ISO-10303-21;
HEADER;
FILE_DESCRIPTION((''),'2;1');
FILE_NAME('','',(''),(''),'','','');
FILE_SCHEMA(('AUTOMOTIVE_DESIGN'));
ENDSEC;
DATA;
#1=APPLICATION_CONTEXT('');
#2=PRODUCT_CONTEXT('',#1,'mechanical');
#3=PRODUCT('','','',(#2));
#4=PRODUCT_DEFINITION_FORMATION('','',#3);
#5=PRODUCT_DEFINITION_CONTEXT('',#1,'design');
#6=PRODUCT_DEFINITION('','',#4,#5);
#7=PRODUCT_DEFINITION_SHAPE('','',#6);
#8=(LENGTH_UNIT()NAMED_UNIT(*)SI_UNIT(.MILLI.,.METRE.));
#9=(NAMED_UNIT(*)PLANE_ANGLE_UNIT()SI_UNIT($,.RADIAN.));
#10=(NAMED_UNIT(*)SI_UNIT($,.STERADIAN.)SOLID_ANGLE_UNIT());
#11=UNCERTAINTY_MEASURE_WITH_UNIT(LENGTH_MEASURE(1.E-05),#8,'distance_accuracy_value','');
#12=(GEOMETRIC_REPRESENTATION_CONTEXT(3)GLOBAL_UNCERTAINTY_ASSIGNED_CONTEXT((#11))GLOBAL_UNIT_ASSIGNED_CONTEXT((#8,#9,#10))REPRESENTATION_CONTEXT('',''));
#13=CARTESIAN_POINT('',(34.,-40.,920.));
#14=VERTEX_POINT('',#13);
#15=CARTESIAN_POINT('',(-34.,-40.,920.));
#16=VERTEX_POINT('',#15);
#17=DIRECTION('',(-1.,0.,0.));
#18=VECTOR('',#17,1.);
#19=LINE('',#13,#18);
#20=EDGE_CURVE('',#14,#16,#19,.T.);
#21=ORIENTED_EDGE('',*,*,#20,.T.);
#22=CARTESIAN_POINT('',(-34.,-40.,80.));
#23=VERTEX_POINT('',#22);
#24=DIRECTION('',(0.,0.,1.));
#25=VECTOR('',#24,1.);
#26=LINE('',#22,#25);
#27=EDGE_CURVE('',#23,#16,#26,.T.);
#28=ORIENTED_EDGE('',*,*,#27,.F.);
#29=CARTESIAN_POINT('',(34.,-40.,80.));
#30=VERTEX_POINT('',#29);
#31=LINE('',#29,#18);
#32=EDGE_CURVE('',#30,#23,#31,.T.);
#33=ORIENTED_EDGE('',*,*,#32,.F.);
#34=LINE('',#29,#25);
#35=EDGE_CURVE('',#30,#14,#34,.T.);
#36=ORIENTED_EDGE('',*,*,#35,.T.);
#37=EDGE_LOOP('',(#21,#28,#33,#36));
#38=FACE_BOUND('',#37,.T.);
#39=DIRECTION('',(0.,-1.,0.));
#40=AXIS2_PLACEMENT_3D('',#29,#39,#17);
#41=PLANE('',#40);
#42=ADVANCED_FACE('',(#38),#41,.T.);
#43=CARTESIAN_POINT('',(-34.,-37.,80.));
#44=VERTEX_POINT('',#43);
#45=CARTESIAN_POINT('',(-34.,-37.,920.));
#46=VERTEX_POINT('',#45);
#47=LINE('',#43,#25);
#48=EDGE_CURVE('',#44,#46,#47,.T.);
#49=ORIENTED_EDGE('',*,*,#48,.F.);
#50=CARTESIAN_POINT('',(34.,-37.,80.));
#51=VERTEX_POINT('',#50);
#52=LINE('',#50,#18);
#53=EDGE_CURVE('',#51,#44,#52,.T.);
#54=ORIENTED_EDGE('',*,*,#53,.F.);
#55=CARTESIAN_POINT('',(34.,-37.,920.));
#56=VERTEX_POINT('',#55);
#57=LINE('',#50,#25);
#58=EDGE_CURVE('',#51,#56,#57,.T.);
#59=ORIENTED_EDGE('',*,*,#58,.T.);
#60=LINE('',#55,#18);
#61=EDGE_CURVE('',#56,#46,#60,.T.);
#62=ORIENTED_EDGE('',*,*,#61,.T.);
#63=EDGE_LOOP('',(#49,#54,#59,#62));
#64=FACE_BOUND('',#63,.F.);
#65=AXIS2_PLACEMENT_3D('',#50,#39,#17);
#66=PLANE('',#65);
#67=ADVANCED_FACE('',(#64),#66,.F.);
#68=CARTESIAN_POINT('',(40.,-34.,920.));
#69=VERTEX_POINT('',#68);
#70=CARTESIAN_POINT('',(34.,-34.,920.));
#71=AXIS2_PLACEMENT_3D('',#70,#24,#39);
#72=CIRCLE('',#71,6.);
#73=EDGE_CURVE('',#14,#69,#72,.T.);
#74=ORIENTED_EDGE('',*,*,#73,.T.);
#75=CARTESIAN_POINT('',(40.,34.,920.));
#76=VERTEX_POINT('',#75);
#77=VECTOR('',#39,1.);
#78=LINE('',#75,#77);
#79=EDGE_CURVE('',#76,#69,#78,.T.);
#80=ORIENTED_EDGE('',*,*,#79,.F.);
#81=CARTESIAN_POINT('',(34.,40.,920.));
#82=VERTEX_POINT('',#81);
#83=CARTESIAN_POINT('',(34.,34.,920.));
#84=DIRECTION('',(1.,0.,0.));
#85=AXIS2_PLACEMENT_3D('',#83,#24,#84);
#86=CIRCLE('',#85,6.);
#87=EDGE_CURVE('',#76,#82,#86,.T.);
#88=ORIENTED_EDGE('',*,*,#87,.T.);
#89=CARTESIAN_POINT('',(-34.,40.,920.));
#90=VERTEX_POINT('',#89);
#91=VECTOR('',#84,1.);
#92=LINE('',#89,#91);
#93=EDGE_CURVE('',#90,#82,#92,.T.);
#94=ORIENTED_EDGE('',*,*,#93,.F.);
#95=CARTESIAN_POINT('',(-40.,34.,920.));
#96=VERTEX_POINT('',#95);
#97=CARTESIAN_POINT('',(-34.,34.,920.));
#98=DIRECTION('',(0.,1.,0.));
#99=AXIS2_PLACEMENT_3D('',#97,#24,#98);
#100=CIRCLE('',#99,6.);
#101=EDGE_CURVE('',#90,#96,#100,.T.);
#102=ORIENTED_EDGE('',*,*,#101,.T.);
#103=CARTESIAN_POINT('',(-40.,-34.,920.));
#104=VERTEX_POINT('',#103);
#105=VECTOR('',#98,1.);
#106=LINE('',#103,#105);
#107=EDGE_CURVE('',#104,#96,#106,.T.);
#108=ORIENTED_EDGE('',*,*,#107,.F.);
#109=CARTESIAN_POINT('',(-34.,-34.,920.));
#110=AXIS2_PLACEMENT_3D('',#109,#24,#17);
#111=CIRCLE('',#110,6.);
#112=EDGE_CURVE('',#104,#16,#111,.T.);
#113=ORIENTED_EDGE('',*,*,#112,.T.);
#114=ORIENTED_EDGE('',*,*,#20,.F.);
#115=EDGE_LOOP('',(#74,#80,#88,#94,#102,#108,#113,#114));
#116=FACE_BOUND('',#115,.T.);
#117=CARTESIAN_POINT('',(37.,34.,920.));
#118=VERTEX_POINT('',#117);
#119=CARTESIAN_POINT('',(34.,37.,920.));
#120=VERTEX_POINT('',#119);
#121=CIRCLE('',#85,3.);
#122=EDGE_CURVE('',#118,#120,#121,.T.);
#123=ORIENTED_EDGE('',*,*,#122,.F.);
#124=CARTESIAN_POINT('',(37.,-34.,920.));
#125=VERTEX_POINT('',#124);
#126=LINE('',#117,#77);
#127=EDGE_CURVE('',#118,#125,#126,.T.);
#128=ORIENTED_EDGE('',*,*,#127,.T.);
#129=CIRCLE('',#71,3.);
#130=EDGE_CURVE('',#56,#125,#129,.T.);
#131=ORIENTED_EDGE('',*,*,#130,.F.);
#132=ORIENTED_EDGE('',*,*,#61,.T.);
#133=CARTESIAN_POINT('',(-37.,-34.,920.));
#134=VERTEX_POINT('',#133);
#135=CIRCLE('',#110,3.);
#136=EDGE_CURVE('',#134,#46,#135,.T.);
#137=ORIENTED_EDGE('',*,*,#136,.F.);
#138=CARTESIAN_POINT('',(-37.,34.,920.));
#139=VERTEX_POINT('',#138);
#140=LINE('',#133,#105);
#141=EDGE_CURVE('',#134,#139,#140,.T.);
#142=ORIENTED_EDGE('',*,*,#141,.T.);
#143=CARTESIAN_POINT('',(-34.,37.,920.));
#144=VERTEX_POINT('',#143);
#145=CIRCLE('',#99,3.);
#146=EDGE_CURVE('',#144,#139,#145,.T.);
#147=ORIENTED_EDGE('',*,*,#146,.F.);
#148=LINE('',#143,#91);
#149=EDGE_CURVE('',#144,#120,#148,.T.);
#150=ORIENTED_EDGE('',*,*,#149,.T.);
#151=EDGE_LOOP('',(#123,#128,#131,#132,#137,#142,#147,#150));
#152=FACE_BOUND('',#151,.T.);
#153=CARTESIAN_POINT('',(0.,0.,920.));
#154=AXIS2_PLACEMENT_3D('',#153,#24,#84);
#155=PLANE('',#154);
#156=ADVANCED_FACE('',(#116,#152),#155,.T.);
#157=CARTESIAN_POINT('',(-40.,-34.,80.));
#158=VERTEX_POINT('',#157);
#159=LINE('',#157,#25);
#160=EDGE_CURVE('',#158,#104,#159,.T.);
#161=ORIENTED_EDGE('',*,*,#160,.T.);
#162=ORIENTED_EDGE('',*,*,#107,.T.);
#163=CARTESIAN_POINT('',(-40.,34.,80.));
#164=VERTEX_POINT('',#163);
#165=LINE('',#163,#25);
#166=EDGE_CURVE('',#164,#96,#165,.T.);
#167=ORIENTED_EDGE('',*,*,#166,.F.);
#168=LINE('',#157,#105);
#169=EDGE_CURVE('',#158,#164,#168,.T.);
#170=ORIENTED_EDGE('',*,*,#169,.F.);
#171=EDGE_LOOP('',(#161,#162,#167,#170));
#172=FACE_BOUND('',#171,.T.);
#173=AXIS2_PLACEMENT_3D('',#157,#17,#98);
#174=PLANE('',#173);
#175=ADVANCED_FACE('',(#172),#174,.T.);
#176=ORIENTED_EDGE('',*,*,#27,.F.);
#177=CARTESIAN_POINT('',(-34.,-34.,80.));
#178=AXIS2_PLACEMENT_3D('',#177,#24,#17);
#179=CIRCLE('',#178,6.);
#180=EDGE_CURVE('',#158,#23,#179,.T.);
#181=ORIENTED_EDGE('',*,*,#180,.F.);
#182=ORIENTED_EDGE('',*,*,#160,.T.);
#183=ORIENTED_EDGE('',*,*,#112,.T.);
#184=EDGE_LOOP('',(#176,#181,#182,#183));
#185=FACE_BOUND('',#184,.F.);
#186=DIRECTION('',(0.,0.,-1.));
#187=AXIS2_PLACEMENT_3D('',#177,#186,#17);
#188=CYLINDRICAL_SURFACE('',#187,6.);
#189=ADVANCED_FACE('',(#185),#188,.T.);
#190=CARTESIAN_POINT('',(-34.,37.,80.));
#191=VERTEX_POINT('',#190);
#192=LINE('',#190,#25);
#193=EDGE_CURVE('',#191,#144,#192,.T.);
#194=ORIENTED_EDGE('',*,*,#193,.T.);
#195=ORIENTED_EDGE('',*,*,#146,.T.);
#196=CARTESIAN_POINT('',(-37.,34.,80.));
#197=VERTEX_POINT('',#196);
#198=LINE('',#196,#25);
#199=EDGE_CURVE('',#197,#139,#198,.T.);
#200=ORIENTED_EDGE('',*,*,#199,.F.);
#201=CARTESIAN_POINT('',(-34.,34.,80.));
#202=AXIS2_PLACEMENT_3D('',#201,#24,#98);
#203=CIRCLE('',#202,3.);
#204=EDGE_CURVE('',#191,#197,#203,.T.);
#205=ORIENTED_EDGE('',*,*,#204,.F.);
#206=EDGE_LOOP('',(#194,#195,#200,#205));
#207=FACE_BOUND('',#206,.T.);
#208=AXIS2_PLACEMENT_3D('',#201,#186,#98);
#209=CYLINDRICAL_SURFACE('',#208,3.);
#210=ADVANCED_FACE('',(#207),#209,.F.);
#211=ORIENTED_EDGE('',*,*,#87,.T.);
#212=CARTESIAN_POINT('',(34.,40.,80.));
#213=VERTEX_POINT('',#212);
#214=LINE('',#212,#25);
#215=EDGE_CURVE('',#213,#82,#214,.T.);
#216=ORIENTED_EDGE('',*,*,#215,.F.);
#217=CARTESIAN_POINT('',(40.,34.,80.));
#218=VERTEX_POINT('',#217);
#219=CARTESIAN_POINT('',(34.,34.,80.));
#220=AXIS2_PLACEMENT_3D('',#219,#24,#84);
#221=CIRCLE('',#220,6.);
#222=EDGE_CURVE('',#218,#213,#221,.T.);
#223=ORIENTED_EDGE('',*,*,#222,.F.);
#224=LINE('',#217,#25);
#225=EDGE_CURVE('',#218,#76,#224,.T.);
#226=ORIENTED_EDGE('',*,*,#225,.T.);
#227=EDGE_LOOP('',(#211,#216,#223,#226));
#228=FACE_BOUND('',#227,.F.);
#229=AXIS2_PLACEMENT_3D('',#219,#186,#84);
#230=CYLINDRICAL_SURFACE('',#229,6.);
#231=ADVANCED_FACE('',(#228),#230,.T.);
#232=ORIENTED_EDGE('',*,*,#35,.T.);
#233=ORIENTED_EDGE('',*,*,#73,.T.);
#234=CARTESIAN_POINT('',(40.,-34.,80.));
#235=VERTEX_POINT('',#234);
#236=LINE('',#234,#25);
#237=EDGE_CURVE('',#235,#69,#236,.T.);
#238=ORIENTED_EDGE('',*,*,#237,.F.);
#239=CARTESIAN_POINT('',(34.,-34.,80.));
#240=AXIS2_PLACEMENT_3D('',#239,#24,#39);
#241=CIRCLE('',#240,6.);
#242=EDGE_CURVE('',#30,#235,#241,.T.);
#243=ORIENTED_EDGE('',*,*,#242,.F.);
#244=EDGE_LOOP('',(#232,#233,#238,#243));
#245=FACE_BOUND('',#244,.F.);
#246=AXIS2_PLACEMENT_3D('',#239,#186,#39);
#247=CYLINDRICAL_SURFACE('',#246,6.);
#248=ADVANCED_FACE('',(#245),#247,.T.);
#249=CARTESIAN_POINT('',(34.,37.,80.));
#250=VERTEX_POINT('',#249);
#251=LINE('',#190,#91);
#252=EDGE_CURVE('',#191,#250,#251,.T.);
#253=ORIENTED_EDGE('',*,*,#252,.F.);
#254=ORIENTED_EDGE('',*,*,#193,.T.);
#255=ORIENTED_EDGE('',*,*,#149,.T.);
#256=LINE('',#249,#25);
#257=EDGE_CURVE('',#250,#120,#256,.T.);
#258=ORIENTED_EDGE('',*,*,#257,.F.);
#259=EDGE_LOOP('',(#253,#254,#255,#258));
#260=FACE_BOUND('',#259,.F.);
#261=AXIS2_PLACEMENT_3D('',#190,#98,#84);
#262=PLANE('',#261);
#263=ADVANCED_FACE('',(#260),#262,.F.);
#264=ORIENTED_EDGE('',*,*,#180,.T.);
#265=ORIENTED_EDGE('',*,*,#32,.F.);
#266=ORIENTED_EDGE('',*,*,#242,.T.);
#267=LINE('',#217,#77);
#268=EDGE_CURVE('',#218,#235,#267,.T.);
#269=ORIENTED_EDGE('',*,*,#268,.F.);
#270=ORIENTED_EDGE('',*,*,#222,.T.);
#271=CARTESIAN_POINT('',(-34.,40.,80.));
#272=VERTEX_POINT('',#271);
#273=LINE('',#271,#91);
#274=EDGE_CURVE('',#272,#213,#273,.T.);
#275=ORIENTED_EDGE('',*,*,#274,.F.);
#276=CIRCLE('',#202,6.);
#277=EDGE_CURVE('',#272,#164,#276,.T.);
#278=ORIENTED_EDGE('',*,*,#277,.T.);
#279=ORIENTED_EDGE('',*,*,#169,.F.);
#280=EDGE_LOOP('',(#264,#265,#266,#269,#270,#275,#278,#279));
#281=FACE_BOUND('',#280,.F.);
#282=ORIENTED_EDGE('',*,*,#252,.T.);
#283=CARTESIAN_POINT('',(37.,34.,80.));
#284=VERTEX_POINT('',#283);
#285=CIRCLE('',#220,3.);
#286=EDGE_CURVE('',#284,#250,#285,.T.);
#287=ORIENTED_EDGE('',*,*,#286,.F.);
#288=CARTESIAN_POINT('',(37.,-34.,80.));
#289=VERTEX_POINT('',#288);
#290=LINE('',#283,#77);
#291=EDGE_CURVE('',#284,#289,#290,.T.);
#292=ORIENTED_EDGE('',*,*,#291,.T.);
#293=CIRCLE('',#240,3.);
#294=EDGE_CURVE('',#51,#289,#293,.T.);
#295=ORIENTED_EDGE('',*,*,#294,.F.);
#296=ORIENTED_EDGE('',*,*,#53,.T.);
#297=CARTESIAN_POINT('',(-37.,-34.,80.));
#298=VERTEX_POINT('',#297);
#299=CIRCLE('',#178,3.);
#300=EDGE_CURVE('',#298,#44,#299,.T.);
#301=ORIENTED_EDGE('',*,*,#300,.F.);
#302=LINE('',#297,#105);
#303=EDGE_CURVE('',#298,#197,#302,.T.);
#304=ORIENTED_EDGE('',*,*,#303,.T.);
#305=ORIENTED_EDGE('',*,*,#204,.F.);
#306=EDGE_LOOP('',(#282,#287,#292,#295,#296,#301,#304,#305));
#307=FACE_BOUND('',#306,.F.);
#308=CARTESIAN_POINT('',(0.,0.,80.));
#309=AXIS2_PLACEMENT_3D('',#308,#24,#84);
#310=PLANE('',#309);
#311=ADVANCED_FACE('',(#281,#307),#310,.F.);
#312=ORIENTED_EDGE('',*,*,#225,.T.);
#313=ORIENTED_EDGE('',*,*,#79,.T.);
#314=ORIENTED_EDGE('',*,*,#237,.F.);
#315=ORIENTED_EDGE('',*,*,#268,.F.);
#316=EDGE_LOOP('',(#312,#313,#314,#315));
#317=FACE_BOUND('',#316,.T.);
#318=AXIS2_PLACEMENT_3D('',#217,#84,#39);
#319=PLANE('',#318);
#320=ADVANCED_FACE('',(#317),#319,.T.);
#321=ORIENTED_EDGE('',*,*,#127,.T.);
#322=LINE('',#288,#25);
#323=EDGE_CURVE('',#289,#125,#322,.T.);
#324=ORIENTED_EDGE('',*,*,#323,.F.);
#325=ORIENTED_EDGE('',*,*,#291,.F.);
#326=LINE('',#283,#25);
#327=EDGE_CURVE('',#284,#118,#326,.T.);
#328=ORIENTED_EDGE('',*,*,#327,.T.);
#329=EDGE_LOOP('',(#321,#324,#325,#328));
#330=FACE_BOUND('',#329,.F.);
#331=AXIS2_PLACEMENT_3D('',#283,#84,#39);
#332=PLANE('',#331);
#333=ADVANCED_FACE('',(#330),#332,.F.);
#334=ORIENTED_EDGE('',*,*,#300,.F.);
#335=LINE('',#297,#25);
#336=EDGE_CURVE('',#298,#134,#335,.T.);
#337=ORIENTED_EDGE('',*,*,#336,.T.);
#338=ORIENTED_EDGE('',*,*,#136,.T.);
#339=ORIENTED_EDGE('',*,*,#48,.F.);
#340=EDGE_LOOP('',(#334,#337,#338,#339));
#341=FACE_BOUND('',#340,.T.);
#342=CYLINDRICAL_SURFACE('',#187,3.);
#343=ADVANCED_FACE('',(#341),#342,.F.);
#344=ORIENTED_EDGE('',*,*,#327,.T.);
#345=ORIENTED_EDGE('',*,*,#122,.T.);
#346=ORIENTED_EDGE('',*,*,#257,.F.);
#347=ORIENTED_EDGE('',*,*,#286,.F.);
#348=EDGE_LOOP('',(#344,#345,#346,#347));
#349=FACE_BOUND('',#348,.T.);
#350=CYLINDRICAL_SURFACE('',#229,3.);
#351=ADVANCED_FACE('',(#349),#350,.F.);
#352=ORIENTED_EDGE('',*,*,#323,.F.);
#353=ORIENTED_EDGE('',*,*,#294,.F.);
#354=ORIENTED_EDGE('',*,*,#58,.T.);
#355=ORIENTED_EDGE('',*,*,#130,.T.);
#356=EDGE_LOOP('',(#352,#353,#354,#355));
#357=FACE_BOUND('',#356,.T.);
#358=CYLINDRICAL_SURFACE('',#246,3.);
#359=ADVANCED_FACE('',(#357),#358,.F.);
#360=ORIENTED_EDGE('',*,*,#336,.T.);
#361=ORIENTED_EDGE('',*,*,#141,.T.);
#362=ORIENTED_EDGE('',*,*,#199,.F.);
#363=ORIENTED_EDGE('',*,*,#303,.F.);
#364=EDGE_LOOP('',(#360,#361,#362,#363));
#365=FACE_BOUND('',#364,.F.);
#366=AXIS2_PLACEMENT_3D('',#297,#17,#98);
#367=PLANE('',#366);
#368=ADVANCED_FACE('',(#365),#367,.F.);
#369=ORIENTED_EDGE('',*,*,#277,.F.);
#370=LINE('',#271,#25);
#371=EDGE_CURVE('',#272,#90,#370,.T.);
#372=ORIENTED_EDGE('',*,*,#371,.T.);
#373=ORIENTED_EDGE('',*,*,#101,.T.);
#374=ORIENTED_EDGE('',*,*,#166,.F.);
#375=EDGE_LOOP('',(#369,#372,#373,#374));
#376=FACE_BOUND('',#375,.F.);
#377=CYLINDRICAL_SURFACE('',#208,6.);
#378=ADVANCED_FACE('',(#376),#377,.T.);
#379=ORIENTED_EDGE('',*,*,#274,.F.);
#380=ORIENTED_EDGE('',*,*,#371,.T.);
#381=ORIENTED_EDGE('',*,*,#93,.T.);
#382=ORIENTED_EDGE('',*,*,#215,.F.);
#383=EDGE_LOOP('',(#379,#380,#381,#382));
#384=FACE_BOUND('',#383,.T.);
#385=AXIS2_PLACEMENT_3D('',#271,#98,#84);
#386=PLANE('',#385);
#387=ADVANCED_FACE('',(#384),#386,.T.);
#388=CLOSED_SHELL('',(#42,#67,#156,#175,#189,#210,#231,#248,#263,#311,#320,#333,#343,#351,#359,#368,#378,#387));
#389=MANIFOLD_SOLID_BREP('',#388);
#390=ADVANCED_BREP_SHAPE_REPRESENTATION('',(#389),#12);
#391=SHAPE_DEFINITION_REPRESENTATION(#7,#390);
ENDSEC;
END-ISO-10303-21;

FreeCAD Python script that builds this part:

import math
import FreeCAD as App
import Part
import Sketcher
from FreeCAD import Vector

doc = App.newDocument("Part")
body = doc.addObject("PartDesign::Body", "Body")

sketch1 = body.newObject("Sketcher::SketchObject", "Sketch")
sketch1.AttachmentSupport = (doc.getObject("XY_Plane"), [""])
sketch1.MapMode = "FlatFace"
sketch1.AttachmentOffset = App.Placement(Vector(0, 0, 80), App.Rotation())
sketch1.addGeometry(Part.LineSegment(Vector(-40, 34, 0), Vector(-40, -34, 0)), False)
sketch1.addGeometry(Part.ArcOfCircle(Part.Circle(Vector(-34, -34, 0), Vector(0, 0, 1), 6), math.radians(180), math.radians(270)), False)
sketch1.addGeometry(Part.LineSegment(Vector(-34, -40, 0), Vector(34, -40, 0)), False)
sketch1.addGeometry(Part.ArcOfCircle(Part.Circle(Vector(34, -34, 0), Vector(0, 0, 1), 6), math.radians(-90), math.radians(0)), False)
sketch1.addGeometry(Part.LineSegment(Vector(40, -34, 0), Vector(40, 34, 0)), False)
sketch1.addGeometry(Part.ArcOfCircle(Part.Circle(Vector(34, 34, 0), Vector(0, 0, 1), 6), math.radians(0), math.radians(90)), False)
sketch1.addGeometry(Part.LineSegment(Vector(34, 40, 0), Vector(-34, 40, 0)), False)
sketch1.addGeometry(Part.ArcOfCircle(Part.Circle(Vector(-34, 34, 0), Vector(0, 0, 1), 6), math.radians(90), math.radians(180)), False)
sketch1.addGeometry(Part.ArcOfCircle(Part.Circle(Vector(-34, 34, 0), Vector(0, 0, 1), 3), math.radians(90), math.radians(180)), False)
sketch1.addGeometry(Part.LineSegment(Vector(-34, 37, 0), Vector(34, 37, 0)), False)
sketch1.addGeometry(Part.ArcOfCircle(Part.Circle(Vector(34, 34, 0), Vector(0, 0, 1), 3), math.radians(0), math.radians(90)), False)
sketch1.addGeometry(Part.LineSegment(Vector(37, 34, 0), Vector(37, -34, 0)), False)
sketch1.addGeometry(Part.ArcOfCircle(Part.Circle(Vector(34, -34, 0), Vector(0, 0, 1), 3), math.radians(-90), math.radians(0)), False)
sketch1.addGeometry(Part.LineSegment(Vector(34, -37, 0), Vector(-34, -37, 0)), False)
sketch1.addGeometry(Part.ArcOfCircle(Part.Circle(Vector(-34, -34, 0), Vector(0, 0, 1), 3), math.radians(180), math.radians(270)), False)
sketch1.addGeometry(Part.LineSegment(Vector(-37, -34, 0), Vector(-37, 34, 0)), False)
sketch1.addConstraint(Sketcher.Constraint("Tangent", 0, 2, 1, 1))
sketch1.addConstraint(Sketcher.Constraint("Tangent", 1, 2, 2, 1))
sketch1.addConstraint(Sketcher.Constraint("Tangent", 2, 2, 3, 1))
sketch1.addConstraint(Sketcher.Constraint("Tangent", 3, 2, 4, 1))
sketch1.addConstraint(Sketcher.Constraint("Tangent", 4, 2, 5, 1))
sketch1.addConstraint(Sketcher.Constraint("Tangent", 5, 2, 6, 1))
sketch1.addConstraint(Sketcher.Constraint("Tangent", 6, 2, 7, 1))
sketch1.addConstraint(Sketcher.Constraint("Tangent", 7, 2, 0, 1))
sketch1.addConstraint(Sketcher.Constraint("Tangent", 8, 1, 9, 1))
sketch1.addConstraint(Sketcher.Constraint("Tangent", 9, 2, 10, 2))
sketch1.addConstraint(Sketcher.Constraint("Tangent", 10, 1, 11, 1))
sketch1.addConstraint(Sketcher.Constraint("Tangent", 11, 2, 12, 2))
sketch1.addConstraint(Sketcher.Constraint("Tangent", 12, 1, 13, 1))
sketch1.addConstraint(Sketcher.Constraint("Tangent", 13, 2, 14, 2))
sketch1.addConstraint(Sketcher.Constraint("Tangent", 14, 1, 15, 1))
sketch1.addConstraint(Sketcher.Constraint("Tangent", 15, 2, 8, 2))
sketch1.addConstraint(Sketcher.Constraint("Vertical", 0))
sketch1.addConstraint(Sketcher.Constraint("Horizontal", 2))
sketch1.addConstraint(Sketcher.Constraint("Vertical", 4))
sketch1.addConstraint(Sketcher.Constraint("Horizontal", 6))
sketch1.addConstraint(Sketcher.Constraint("Horizontal", 9))
sketch1.addConstraint(Sketcher.Constraint("Vertical", 11))
sketch1.addConstraint(Sketcher.Constraint("Horizontal", 13))
sketch1.addConstraint(Sketcher.Constraint("Vertical", 15))
sketch1.addConstraint(Sketcher.Constraint("Coincident", 8, 3, 7, 3))
sketch1.addConstraint(Sketcher.Constraint("Coincident", 10, 3, 5, 3))
sketch1.addConstraint(Sketcher.Constraint("Coincident", 12, 3, 3, 3))
sketch1.addConstraint(Sketcher.Constraint("Equal", 1, 3))
sketch1.addConstraint(Sketcher.Constraint("Equal", 3, 5))
sketch1.addConstraint(Sketcher.Constraint("Equal", 5, 7))
sketch1.addConstraint(Sketcher.Constraint("Equal", 12, 14))
sketch1.addConstraint(Sketcher.Constraint("Symmetric", 1, 3, 5, 3, -1, 1))
sketch1.addConstraint(Sketcher.Constraint("Equal", 13, 0))
sketch1.addConstraint(Sketcher.Constraint("Radius", 1, 6.0))
sketch1.addConstraint(Sketcher.Constraint("Radius", 8, 3.0))
sketch1.addConstraint(Sketcher.Constraint("DistanceX", 0, 2, -1, 1, 40.0))
pad1 = body.newObject("PartDesign::Pad", "Pad")
pad1.Profile = sketch1
pad1.Length = 840

doc.recompute()
